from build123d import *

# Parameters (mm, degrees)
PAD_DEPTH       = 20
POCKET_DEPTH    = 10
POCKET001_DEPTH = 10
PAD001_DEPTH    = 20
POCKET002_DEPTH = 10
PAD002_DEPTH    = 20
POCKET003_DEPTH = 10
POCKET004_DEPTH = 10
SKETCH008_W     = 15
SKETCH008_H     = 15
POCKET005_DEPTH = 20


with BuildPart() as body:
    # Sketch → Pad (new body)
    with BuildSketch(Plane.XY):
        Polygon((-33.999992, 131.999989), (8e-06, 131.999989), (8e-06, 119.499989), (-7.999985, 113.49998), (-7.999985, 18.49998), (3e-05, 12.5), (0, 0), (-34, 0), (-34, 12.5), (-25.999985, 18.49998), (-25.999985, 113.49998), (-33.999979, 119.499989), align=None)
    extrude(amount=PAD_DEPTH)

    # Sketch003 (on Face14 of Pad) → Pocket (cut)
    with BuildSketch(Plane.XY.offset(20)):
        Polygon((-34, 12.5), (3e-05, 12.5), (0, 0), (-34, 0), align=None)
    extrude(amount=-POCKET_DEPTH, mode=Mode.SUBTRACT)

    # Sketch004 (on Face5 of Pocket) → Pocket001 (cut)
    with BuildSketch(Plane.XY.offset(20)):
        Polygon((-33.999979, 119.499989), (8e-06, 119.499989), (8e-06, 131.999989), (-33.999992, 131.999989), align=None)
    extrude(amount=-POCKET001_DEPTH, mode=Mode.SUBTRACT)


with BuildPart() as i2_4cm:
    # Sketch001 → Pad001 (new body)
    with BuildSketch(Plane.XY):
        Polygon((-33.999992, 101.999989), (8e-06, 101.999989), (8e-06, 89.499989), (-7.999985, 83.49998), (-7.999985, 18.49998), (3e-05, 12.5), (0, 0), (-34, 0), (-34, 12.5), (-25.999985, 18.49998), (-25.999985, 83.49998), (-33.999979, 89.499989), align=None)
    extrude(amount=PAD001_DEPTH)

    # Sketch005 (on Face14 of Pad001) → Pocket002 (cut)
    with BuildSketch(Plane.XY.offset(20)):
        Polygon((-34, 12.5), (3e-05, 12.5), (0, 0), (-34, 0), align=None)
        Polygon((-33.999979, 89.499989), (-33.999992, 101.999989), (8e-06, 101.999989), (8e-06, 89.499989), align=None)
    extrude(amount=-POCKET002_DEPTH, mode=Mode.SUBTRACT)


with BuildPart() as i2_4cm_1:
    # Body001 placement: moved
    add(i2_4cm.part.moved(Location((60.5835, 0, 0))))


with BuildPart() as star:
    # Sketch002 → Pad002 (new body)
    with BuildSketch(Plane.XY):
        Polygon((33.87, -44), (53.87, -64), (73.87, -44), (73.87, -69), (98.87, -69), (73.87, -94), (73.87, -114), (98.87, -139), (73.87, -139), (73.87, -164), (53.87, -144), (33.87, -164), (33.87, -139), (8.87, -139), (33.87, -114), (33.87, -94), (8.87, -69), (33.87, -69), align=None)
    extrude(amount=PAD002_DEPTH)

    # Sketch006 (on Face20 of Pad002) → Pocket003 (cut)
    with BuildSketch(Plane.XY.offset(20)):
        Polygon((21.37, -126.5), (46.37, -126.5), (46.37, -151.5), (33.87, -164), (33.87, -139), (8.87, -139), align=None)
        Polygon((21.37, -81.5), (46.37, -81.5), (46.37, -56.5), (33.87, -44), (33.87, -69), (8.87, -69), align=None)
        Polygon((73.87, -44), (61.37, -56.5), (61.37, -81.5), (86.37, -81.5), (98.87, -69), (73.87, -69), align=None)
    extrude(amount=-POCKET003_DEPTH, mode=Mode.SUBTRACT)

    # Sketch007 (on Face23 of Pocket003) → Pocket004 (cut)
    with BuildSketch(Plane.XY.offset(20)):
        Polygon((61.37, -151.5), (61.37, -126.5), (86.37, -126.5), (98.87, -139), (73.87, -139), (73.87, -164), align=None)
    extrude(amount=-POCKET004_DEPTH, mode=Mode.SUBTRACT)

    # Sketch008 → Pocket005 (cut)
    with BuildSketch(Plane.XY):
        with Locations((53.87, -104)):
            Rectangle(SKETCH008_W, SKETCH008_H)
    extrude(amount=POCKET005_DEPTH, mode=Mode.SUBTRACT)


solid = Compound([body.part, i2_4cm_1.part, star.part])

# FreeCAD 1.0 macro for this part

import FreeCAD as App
import Part
import Sketcher
Q = App.Units.Quantity


def add_polygon(sketch, points):
    """Adds a closed chain of lines whose ends are joined by coincident constraints."""
    first, n = sketch.GeometryCount, len(points)
    for a, b in zip(points, points[1:] + points[:1]):
        sketch.addGeometry(Part.LineSegment(App.Vector(*a, 0), App.Vector(*b, 0)), False)
    for i in range(n):
        sketch.addConstraint(Sketcher.Constraint("Coincident", first + i, 2, first + (i + 1) % n, 1))

doc = App.newDocument("Part")
body = doc.addObject("PartDesign::Body", "Body")

# Sketch on XY plane
sketch1 = body.newObject("Sketcher::SketchObject", "Sketch")
sketch1.AttachmentSupport = (doc.getObject("XY_Plane"), [""])
sketch1.MapMode = "FlatFace"
add_polygon(sketch1, [(0.000008, 131.999989), (-33.999992, 131.999989), (-33.999979, 119.499989), (-25.999985, 113.49998), (-25.999985, 18.49998), (-34, 12.5), (-34, 0), (0, 0), (0.00003, 12.5), (-7.999985, 18.49998), (-7.999985, 113.49998), (0.000008, 119.499989)])  # lines 0-11
sketch1.addConstraint(Sketcher.Constraint("Horizontal", 0))
sketch1.addConstraint(Sketcher.Constraint("Vertical", 3))
sketch1.addConstraint(Sketcher.Constraint("Vertical", 5))
sketch1.addConstraint(Sketcher.Constraint("Horizontal", 6))
sketch1.addConstraint(Sketcher.Constraint("Vertical", 9))
sketch1.addConstraint(Sketcher.Constraint("Vertical", 11))
sketch1.addConstraint(Sketcher.Constraint("Coincident", 6, 2, -1, 1))
sketch1.addConstraint(Sketcher.Constraint("Horizontal", 4, 2, 7, 2))
sketch1.addConstraint(Sketcher.Constraint("Horizontal", 3, 2, 8, 2))
sketch1.addConstraint(Sketcher.Constraint("Horizontal", 2, 2, 9, 2))
sketch1.addConstraint(Sketcher.Constraint("Horizontal", 1, 2, 10, 2))
sketch1.addConstraint(Sketcher.Constraint("Equal", 0, 6))
sketch1.addConstraint(Sketcher.Constraint("Equal", 5, 11))
sketch1.addConstraint(Sketcher.Constraint("Equal", 2, 4))
sketch1.addConstraint(Sketcher.Constraint("Equal", 4, 8))
sketch1.addConstraint(Sketcher.Constraint("Equal", 8, 10))
sketch1.addConstraint(Sketcher.Constraint("DistanceX", 0, 2, 0, 1, Q("34 mm")))
sketch1.addConstraint(Sketcher.Constraint("DistanceY", 3, 2, 3, 1, Q("95 mm")))
sketch1.addConstraint(Sketcher.Constraint("Distance", 2, Q("10.000001 mm")))
sketch1.addConstraint(Sketcher.Constraint("DistanceY", 5, 2, 5, 1, Q("12.5 mm")))
sketch1.addConstraint(Sketcher.Constraint("DistanceX", 3, 2, 8, 2, Q("18 mm")))
sketch1.addConstraint(Sketcher.Constraint("DistanceY", -1, 1, 0, 2, Q("131.999989 mm")))
sketch1.addConstraint(Sketcher.Constraint("DistanceX", 1, 2, -1, 1, Q("33.999979 mm")))
pad1 = body.newObject("PartDesign::Pad", "Pad")
pad1.Profile = sketch1
pad1.Length = 20

# Sketch on XY plane
sketch2 = body.newObject("Sketcher::SketchObject", "Sketch001")
sketch2.AttachmentSupport = (doc.getObject("XY_Plane"), [""])
sketch2.MapMode = "FlatFace"
sketch2.AttachmentOffset = App.Placement(App.Vector(0, 0, 20), App.Rotation())
add_polygon(sketch2, [(0.00003, 12.5), (-34, 12.5), (-34, 0), (0, 0)])  # lines 0-3
sketch2.addConstraint(Sketcher.Constraint("Horizontal", 0))
sketch2.addConstraint(Sketcher.Constraint("Vertical", 1))
sketch2.addConstraint(Sketcher.Constraint("Horizontal", 2))
sketch2.addConstraint(Sketcher.Constraint("Coincident", 2, 2, -1, 1))
sketch2.addConstraint(Sketcher.Constraint("DistanceX", 2, 1, 2, 2, Q("34 mm")))
sketch2.addConstraint(Sketcher.Constraint("DistanceY", 1, 2, 1, 1, Q("12.5 mm")))
sketch2.addConstraint(Sketcher.Constraint("DistanceX", 0, 2, 0, 1, Q("34.00003 mm")))
pocket1 = body.newObject("PartDesign::Pocket", "Pocket")
pocket1.Profile = sketch2
pocket1.Length = 10

# Sketch on XY plane
sketch3 = body.newObject("Sketcher::SketchObject", "Sketch002")
sketch3.AttachmentSupport = (doc.getObject("XY_Plane"), [""])
sketch3.MapMode = "FlatFace"
sketch3.AttachmentOffset = App.Placement(App.Vector(0, 0, 20), App.Rotation())
add_polygon(sketch3, [(-33.999979, 119.499989), (0.000008, 119.499989), (0.000008, 131.999989), (-33.999992, 131.999989)])  # lines 0-3
sketch3.addConstraint(Sketcher.Constraint("Horizontal", 0))
sketch3.addConstraint(Sketcher.Constraint("Vertical", 1))
sketch3.addConstraint(Sketcher.Constraint("Horizontal", 2))
sketch3.addConstraint(Sketcher.Constraint("DistanceX", 2, 2, 2, 1, Q("34 mm")))
sketch3.addConstraint(Sketcher.Constraint("DistanceY", 1, 1, 1, 2, Q("12.5 mm")))
sketch3.addConstraint(Sketcher.Constraint("DistanceX", 0, 1, 0, 2, Q("33.999987 mm")))
sketch3.addConstraint(Sketcher.Constraint("DistanceY", -1, 1, 0, 2, Q("119.499989 mm")))
sketch3.addConstraint(Sketcher.Constraint("DistanceX", 3, 2, -1, 1, Q("33.999979 mm")))
pocket2 = body.newObject("PartDesign::Pocket", "Pocket001")
pocket2.Profile = sketch3
pocket2.Length = 10
body2 = doc.addObject("PartDesign::Body", "Body001")

# Sketch on XY plane
sketch4 = body2.newObject("Sketcher::SketchObject", "Sketch003")
sketch4.AttachmentSupport = (doc.getObject("XY_Plane001"), [""])
sketch4.MapMode = "FlatFace"
add_polygon(sketch4, [(0.000008, 101.999989), (-33.999992, 101.999989), (-33.999979, 89.499989), (-25.999985, 83.49998), (-25.999985, 18.49998), (-34, 12.5), (-34, 0), (0, 0), (0.00003, 12.5), (-7.999985, 18.49998), (-7.999985, 83.49998), (0.000008, 89.499989)])  # lines 0-11
sketch4.addConstraint(Sketcher.Constraint("Horizontal", 0))
sketch4.addConstraint(Sketcher.Constraint("Vertical", 3))
sketch4.addConstraint(Sketcher.Constraint("Vertical", 5))
sketch4.addConstraint(Sketcher.Constraint("Horizontal", 6))
sketch4.addConstraint(Sketcher.Constraint("Vertical", 9))
sketch4.addConstraint(Sketcher.Constraint("Vertical", 11))
sketch4.addConstraint(Sketcher.Constraint("Coincident", 6, 2, -1, 1))
sketch4.addConstraint(Sketcher.Constraint("Horizontal", 4, 2, 7, 2))
sketch4.addConstraint(Sketcher.Constraint("Horizontal", 3, 2, 8, 2))
sketch4.addConstraint(Sketcher.Constraint("Horizontal", 2, 2, 9, 2))
sketch4.addConstraint(Sketcher.Constraint("Horizontal", 1, 2, 10, 2))
sketch4.addConstraint(Sketcher.Constraint("Equal", 0, 6))
sketch4.addConstraint(Sketcher.Constraint("Equal", 5, 11))
sketch4.addConstraint(Sketcher.Constraint("Equal", 2, 4))
sketch4.addConstraint(Sketcher.Constraint("Equal", 4, 8))
sketch4.addConstraint(Sketcher.Constraint("Equal", 8, 10))
sketch4.addConstraint(Sketcher.Constraint("DistanceX", 0, 2, 0, 1, Q("34 mm")))
sketch4.addConstraint(Sketcher.Constraint("DistanceY", 3, 2, 3, 1, Q("65 mm")))
sketch4.addConstraint(Sketcher.Constraint("Distance", 2, Q("10.000001 mm")))
sketch4.addConstraint(Sketcher.Constraint("DistanceY", 5, 2, 5, 1, Q("12.5 mm")))
sketch4.addConstraint(Sketcher.Constraint("DistanceX", 3, 2, 8, 2, Q("18 mm")))
sketch4.addConstraint(Sketcher.Constraint("DistanceY", -1, 1, 0, 2, Q("101.999989 mm")))
sketch4.addConstraint(Sketcher.Constraint("DistanceX", 1, 2, -1, 1, Q("33.999979 mm")))
pad2 = body2.newObject("PartDesign::Pad", "Pad001")
pad2.Profile = sketch4
pad2.Length = 20

# Sketch on XY plane
sketch5 = body2.newObject("Sketcher::SketchObject", "Sketch004")
sketch5.AttachmentSupport = (doc.getObject("XY_Plane001"), [""])
sketch5.MapMode = "FlatFace"
sketch5.AttachmentOffset = App.Placement(App.Vector(0, 0, 20), App.Rotation())
add_polygon(sketch5, [(0.00003, 12.5), (-34, 12.5), (-34, 0), (0, 0)])  # lines 0-3
add_polygon(sketch5, [(-33.999992, 101.999989), (-33.999979, 89.499989), (0.000008, 89.499989), (0.000008, 101.999989)])  # lines 4-7
sketch5.addConstraint(Sketcher.Constraint("Horizontal", 0))
sketch5.addConstraint(Sketcher.Constraint("Vertical", 1))
sketch5.addConstraint(Sketcher.Constraint("Horizontal", 2))
sketch5.addConstraint(Sketcher.Constraint("Horizontal", 5))
sketch5.addConstraint(Sketcher.Constraint("Vertical", 6))
sketch5.addConstraint(Sketcher.Constraint("Horizontal", 7))
sketch5.addConstraint(Sketcher.Constraint("Coincident", 2, 2, -1, 1))
sketch5.addConstraint(Sketcher.Constraint("Equal", 2, 7))
sketch5.addConstraint(Sketcher.Constraint("Equal", 1, 6))
sketch5.addConstraint(Sketcher.Constraint("DistanceX", 2, 1, 2, 2, Q("34 mm")))
sketch5.addConstraint(Sketcher.Constraint("DistanceY", 1, 2, 1, 1, Q("12.5 mm")))
sketch5.addConstraint(Sketcher.Constraint("DistanceX", 0, 2, 0, 1, Q("34.00003 mm")))
sketch5.addConstraint(Sketcher.Constraint("DistanceX", 5, 1, 5, 2, Q("33.999987 mm")))
sketch5.addConstraint(Sketcher.Constraint("DistanceX", 4, 2, -1, 1, Q("33.999979 mm")))
sketch5.addConstraint(Sketcher.Constraint("DistanceY", -1, 1, 4, 2, Q("89.499989 mm")))
pocket3 = body2.newObject("PartDesign::Pocket", "Pocket002")
pocket3.Profile = sketch5
pocket3.Length = 10
body3 = doc.addObject("PartDesign::Body", "Body002")
doc.recompute()

body2.Placement = App.Placement(App.Vector(60.5835, 0, 0), App.Rotation(App.Vector(0, 0, 1), 0))
boolean = body3.newObject("PartDesign::Boolean", "Boolean")
boolean.Type = "Fuse"
boolean.addObjects([body2])
body4 = doc.addObject("PartDesign::Body", "Body003")

# Sketch on XY plane
sketch6 = body4.newObject("Sketcher::SketchObject", "Sketch005")
sketch6.AttachmentSupport = (doc.getObject("XY_Plane003"), [""])
sketch6.MapMode = "FlatFace"
add_polygon(sketch6, [(53.87, -64), (33.87, -44), (33.87, -69), (8.87, -69), (33.87, -94), (33.87, -114), (8.87, -139), (33.87, -139), (33.87, -164), (53.87, -144), (73.87, -164), (73.87, -139), (98.87, -139), (73.87, -114), (73.87, -94), (98.87, -69), (73.87, -69), (73.87, -44)])  # lines 0-17
sketch6.addConstraint(Sketcher.Constraint("Vertical", 1))
sketch6.addConstraint(Sketcher.Constraint("Horizontal", 2))
sketch6.addConstraint(Sketcher.Constraint("Vertical", 4))
sketch6.addConstraint(Sketcher.Constraint("Horizontal", 6))
sketch6.addConstraint(Sketcher.Constraint("Vertical", 7))
sketch6.addConstraint(Sketcher.Constraint("Vertical", 10))
sketch6.addConstraint(Sketcher.Constraint("Horizontal", 11))
sketch6.addConstraint(Sketcher.Constraint("Vertical", 13))
sketch6.addConstraint(Sketcher.Constraint("Horizontal", 15))
sketch6.addConstraint(Sketcher.Constraint("Vertical", 16))
sketch6.addConstraint(Sketcher.Constraint("Parallel", 0, 3))
sketch6.addConstraint(Sketcher.Constraint("Perpendicular", 3, 5))
sketch6.addConstraint(Sketcher.Constraint("Parallel", 5, 8))
sketch6.addConstraint(Sketcher.Constraint("Perpendicular", 8, 9))
sketch6.addConstraint(Sketcher.Constraint("Parallel", 9, 12))
sketch6.addConstraint(Sketcher.Constraint("Perpendicular", 12, 14))
sketch6.addConstraint(Sketcher.Constraint("Parallel", 14, 17))
sketch6.addConstraint(Sketcher.Constraint("Horizontal", 7, 2, 9, 2))
sketch6.addConstraint(Sketcher.Constraint("Horizontal", 6, 2, 10, 2))
sketch6.addConstraint(Sketcher.Constraint("Horizontal", 4, 2, 12, 2))
sketch6.addConstraint(Sketcher.Constraint("Horizontal", 3, 2, 13, 2))
sketch6.addConstraint(Sketcher.Constraint("Horizontal", 2, 2, 14, 2))
sketch6.addConstraint(Sketcher.Constraint("Horizontal", 0, 2, 16, 2))
sketch6.addConstraint(Sketcher.Constraint("Vertical", 1, 2, 3, 2))
sketch6.addConstraint(Sketcher.Constraint("Vertical", 2, 2, 5, 2))
sketch6.addConstraint(Sketcher.Constraint("Vertical", 4, 2, 6, 2))
sketch6.addConstraint(Sketcher.Constraint("Vertical", 10, 2, 12, 2))
sketch6.addConstraint(Sketcher.Constraint("Vertical", 11, 2, 14, 2))
sketch6.addConstraint(Sketcher.Constraint("Vertical", 13, 2, 15, 2))
sketch6.addConstraint(Sketcher.Constraint("Equal", 15, 1))
sketch6.addConstraint(Sketcher.Constraint("Equal", 1, 7))
sketch6.addConstraint(Sketcher.Constraint("DistanceX", 2, 2, 2, 1, Q("25 mm")))
sketch6.addConstraint(Sketcher.Constraint("DistanceY", 4, 2, 4, 1, Q("20 mm")))
sketch6.addConstraint(Sketcher.Constraint("DistanceY", 0, 2, -1, 1, Q("44 mm")))
sketch6.addConstraint(Sketcher.Constraint("DistanceY", 8, 2, -1, 1, Q("144 mm")))
sketch6.addConstraint(Sketcher.Constraint("DistanceX", -1, 1, 0, 2, Q("33.87 mm")))
pad3 = body4.newObject("PartDesign::Pad", "Pad002")
pad3.Profile = sketch6
pad3.Length = 20

# Sketch on XY plane
sketch7 = body4.newObject("Sketcher::SketchObject", "Sketch006")
sketch7.AttachmentSupport = (doc.getObject("XY_Plane003"), [""])
sketch7.MapMode = "FlatFace"
sketch7.AttachmentOffset = App.Placement(App.Vector(0, 0, 20), App.Rotation())
add_polygon(sketch7, [(46.37, -126.5), (21.37, -126.5), (8.87, -139), (33.87, -139), (33.87, -164), (46.37, -151.5)])  # lines 0-5
add_polygon(sketch7, [(21.37, -81.5), (46.37, -81.5), (46.37, -56.5), (33.87, -44), (33.87, -69), (8.87, -69)])  # lines 6-11
add_polygon(sketch7, [(73.87, -44), (61.37, -56.5), (61.37, -81.5), (86.37, -81.5), (98.87, -69), (73.87, -69)])  # lines 12-17
sketch7.addConstraint(Sketcher.Constraint("Horizontal", 0))
sketch7.addConstraint(Sketcher.Constraint("Horizontal", 2))
sketch7.addConstraint(Sketcher.Constraint("Vertical", 3))
sketch7.addConstraint(Sketcher.Constraint("Vertical", 5))
sketch7.addConstraint(Sketcher.Constraint("Horizontal", 6))
sketch7.addConstraint(Sketcher.Constraint("Vertical", 7))
sketch7.addConstraint(Sketcher.Constraint("Vertical", 9))
sketch7.addConstraint(Sketcher.Constraint("Horizontal", 10))
sketch7.addConstraint(Sketcher.Constraint("Vertical", 13))
sketch7.addConstraint(Sketcher.Constraint("Horizontal", 14))
sketch7.addConstraint(Sketcher.Constraint("Horizontal", 16))
sketch7.addConstraint(Sketcher.Constraint("Vertical", 17))
sketch7.addConstraint(Sketcher.Constraint("Parallel", 1, 4))
sketch7.addConstraint(Sketcher.Constraint("Perpendicular", 4, 8))
sketch7.addConstraint(Sketcher.Constraint("Parallel", 8, 11))
sketch7.addConstraint(Sketcher.Constraint("Perpendicular", 11, 12))
sketch7.addConstraint(Sketcher.Constraint("Parallel", 12, 15))
sketch7.addConstraint(Sketcher.Constraint("Horizontal", 7, 2, 12, 2))
sketch7.addConstraint(Sketcher.Constraint("Horizontal", 11, 2, 13, 2))
sketch7.addConstraint(Sketcher.Constraint("Horizontal", 10, 2, 15, 2))
sketch7.addConstraint(Sketcher.Constraint("Horizontal", 8, 2, 17, 2))
sketch7.addConstraint(Sketcher.Constraint("Vertical", 5, 2, 6, 2))
sketch7.addConstraint(Sketcher.Constraint("Vertical", 3, 2, 8, 2))
sketch7.addConstraint(Sketcher.Constraint("Vertical", 1, 2, 10, 2))
sketch7.addConstraint(Sketcher.Constraint("Vertical", 0, 2, 11, 2))
sketch7.addConstraint(Sketcher.Constraint("Equal", 0, 2))
sketch7.addConstraint(Sketcher.Constraint("Equal", 10, 14))
sketch7.addConstraint(Sketcher.Constraint("Equal", 16, 3))
sketch7.addConstraint(Sketcher.Constraint("Equal", 5, 7))
sketch7.addConstraint(Sketcher.Constraint("Equal", 4, 8))
sketch7.addConstraint(Sketcher.Constraint("DistanceX", 0, 2, 0, 1, Q("25 mm")))
sketch7.addConstraint(Sketcher.Constraint("DistanceY", 1, 2, -1, 1, Q("139 mm")))
sketch7.addConstraint(Sketcher.Constraint("DistanceY", 8, 2, -1, 1, Q("44 mm")))
sketch7.addConstraint(Sketcher.Constraint("DistanceY", 5, 2, 6, 2, Q("45 mm")))
sketch7.addConstraint(Sketcher.Constraint("DistanceX", 7, 2, 12, 2, Q("15 mm")))
sketch7.addConstraint(Sketcher.Constraint("DistanceX", -1, 1, 0, 2, Q("21.37 mm")))
pocket4 = body4.newObject("PartDesign::Pocket", "Pocket003")
pocket4.Profile = sketch7
pocket4.Length = 10

# Sketch on XY plane
sketch8 = body4.newObject("Sketcher::SketchObject", "Sketch007")
sketch8.AttachmentSupport = (doc.getObject("XY_Plane003"), [""])
sketch8.MapMode = "FlatFace"
sketch8.AttachmentOffset = App.Placement(App.Vector(0, 0, 20), App.Rotation())
add_polygon(sketch8, [(61.37, -126.5), (61.37, -151.5), (73.87, -164), (73.87, -139), (98.87, -139), (86.37, -126.5)])  # lines 0-5
sketch8.addConstraint(Sketcher.Constraint("Vertical", 0))
sketch8.addConstraint(Sketcher.Constraint("Vertical", 2))
sketch8.addConstraint(Sketcher.Constraint("Horizontal", 3))
sketch8.addConstraint(Sketcher.Constraint("Horizontal", 5))
sketch8.addConstraint(Sketcher.Constraint("Parallel", 1, 4))
sketch8.addConstraint(Sketcher.Constraint("Equal", 3, 5))
sketch8.addConstraint(Sketcher.Constraint("Equal", 5, 0))
sketch8.addConstraint(Sketcher.Constraint("DistanceX", 3, 1, 3, 2, Q("25 mm")))
sketch8.addConstraint(Sketcher.Constraint("Angle", 1, Q("-45 deg")))
sketch8.addConstraint(Sketcher.Constraint("DistanceY", 1, 2, -1, 1, Q("164 mm")))
sketch8.addConstraint(Sketcher.Constraint("DistanceY", 0, 2, -1, 1, Q("151.5 mm")))
sketch8.addConstraint(Sketcher.Constraint("DistanceX", -1, 1, 0, 2, Q("61.37 mm")))
pocket5 = body4.newObject("PartDesign::Pocket", "Pocket004")
pocket5.Profile = sketch8
pocket5.Length = 10

# Sketch on XY plane
sketch9 = body4.newObject("Sketcher::SketchObject", "Sketch008")
sketch9.AttachmentSupport = (doc.getObject("XY_Plane003"), [""])
sketch9.MapMode = "FlatFace"
add_polygon(sketch9, [(46.37, -96.5), (46.37, -111.5), (61.37, -111.5), (61.37, -96.5)])  # lines 0-3
sketch9.addConstraint(Sketcher.Constraint("Vertical", 0))
sketch9.addConstraint(Sketcher.Constraint("Horizontal", 1))
sketch9.addConstraint(Sketcher.Constraint("Vertical", 2))
sketch9.addConstraint(Sketcher.Constraint("Horizontal", 3))
sketch9.addConstraint(Sketcher.Constraint("Equal", 3, 0))
sketch9.addConstraint(Sketcher.Constraint("DistanceX", 1, 1, 1, 2, Q("15 mm")))
sketch9.addConstraint(Sketcher.Constraint("DistanceY", 0, 2, -1, 1, Q("111.5 mm")))
sketch9.addConstraint(Sketcher.Constraint("DistanceX", -1, 1, 0, 2, Q("46.37 mm")))
pocket6 = body4.newObject("PartDesign::Pocket", "Pocket005")
pocket6.Profile = sketch9
pocket6.Length = 20
pocket6.Reversed = True

doc.recompute()
